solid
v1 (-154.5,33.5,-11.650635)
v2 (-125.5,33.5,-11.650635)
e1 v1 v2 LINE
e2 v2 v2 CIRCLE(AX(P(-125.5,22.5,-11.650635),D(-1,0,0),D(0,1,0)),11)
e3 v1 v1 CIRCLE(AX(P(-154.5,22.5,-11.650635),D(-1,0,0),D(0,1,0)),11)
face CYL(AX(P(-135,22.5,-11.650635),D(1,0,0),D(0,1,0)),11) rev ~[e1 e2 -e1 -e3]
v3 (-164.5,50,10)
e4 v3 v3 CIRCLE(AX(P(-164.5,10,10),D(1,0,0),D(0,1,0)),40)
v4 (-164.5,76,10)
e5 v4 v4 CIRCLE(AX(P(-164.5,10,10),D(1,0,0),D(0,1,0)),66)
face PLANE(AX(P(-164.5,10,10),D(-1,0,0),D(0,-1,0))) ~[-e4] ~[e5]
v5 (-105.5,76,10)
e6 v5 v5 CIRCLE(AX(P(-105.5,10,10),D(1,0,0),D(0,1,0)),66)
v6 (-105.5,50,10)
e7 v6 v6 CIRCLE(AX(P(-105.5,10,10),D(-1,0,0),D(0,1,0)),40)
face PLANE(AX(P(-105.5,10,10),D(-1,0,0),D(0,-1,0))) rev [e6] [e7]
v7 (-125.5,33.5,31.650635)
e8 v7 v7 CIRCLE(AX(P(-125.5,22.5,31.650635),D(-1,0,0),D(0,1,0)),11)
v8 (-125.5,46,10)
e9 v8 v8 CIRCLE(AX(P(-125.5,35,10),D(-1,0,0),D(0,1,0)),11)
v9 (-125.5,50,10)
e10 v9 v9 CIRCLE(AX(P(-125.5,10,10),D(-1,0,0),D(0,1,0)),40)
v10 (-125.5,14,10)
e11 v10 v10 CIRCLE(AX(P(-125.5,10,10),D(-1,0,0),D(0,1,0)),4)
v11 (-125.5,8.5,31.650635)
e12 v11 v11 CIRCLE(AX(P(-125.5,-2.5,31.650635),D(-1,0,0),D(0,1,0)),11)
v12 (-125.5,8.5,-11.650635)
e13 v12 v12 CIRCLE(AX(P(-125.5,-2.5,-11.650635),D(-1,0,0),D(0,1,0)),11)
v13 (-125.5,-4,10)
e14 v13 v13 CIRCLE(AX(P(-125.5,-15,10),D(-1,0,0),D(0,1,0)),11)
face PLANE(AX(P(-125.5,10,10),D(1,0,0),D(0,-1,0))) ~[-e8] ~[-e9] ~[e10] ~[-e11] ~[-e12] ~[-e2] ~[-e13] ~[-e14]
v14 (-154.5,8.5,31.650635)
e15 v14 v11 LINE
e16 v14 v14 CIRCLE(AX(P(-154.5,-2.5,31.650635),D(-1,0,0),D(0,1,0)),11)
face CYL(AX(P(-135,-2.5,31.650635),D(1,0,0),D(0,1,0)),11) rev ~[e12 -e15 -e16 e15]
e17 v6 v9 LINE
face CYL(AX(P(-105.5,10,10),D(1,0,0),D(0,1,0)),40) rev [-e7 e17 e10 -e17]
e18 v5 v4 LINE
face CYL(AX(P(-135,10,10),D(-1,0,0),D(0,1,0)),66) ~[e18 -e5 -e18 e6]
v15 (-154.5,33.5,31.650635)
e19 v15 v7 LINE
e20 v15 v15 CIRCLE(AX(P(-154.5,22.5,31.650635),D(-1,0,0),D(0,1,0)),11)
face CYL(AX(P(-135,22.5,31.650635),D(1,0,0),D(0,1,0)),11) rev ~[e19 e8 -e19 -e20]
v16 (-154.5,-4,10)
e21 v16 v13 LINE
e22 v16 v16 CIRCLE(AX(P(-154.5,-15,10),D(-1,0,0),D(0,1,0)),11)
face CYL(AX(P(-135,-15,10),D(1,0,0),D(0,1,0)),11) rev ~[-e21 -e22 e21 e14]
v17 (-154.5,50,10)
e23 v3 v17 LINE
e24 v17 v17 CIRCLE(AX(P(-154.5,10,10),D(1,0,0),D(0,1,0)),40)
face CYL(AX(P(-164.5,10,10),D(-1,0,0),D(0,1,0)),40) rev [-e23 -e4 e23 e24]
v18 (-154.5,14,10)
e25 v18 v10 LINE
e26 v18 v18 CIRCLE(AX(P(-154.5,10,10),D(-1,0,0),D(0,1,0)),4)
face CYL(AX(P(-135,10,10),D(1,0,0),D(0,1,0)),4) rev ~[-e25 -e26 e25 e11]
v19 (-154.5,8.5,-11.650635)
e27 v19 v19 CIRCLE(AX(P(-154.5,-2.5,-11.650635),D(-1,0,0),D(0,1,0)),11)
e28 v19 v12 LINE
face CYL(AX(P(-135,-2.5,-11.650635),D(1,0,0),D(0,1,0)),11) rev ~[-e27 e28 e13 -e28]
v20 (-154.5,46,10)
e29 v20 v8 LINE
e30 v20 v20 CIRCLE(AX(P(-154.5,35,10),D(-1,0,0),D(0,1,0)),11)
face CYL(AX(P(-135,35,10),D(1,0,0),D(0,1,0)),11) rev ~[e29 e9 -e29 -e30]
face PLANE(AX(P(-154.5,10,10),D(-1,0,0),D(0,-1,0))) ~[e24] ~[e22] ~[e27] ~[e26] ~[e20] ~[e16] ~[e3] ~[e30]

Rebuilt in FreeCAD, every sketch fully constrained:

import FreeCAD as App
import Part
import Sketcher

V = App.Vector
Q = App.Units.Quantity

doc = App.newDocument("Part")
params = doc.addObject("Spreadsheet::Sheet", "Params")
for row, (alias, value) in enumerate([
    ("sketch1_diameter", "132 mm"),
    ("sketch1_diameter2", "22 mm"),
    ("sketch1_diameter3", "8 mm"),
    ("pad1_length", "59 mm"),
    ("sketch2_diameter", "80 mm"),
    ("pocket1_length", "20 mm"),
    ("sketch3_diameter", "80 mm"),
    ("pocket2_length", "10 mm"),
], start=1):
    params.set(f"A{row}", alias)
    params.set(f"B{row}", "=" + value)
    params.setAlias(f"B{row}", alias)

body = doc.addObject("PartDesign::Body", "Body")

# Sketch on YZ plane
sketch1 = doc.addObject("Sketcher::SketchObject", "Sketch")
body.addObject(sketch1)
sketch1.AttachmentSupport = (doc.YZ_Plane, [""])
sketch1.MapMode = "FlatFace"
sketch1.addGeometry([
    Part.Circle(V(0, 0, 0), V(0, 0, 1), 66),  # 0
    Part.Circle(V(-12.5, -21.7, 0), V(0, 0, 1), 11),  # 1
    Part.Circle(V(12.5, -21.7, 0), V(0, 0, 1), 11),  # 2
    Part.Circle(V(-25, 0, 0), V(0, 0, 1), 11),  # 3
    Part.Circle(V(-12.5, 21.7, 0), V(0, 0, 1), 11),  # 4
    Part.Circle(V(0, 0, 0), V(0, 0, 1), 4),  # 5
    Part.Circle(V(25, 0, 0), V(0, 0, 1), 11),  # 6
    Part.Circle(V(12.5, 21.7, 0), V(0, 0, 1), 11),  # 7
], False)
sketch1.addConstraint([
    Sketcher.Constraint("Coincident", 0, 3, -1, 1),
    Sketcher.Constraint("Coincident", 5, 3, -1, 1),
    Sketcher.Constraint("Equal", 1, 2),
    Sketcher.Constraint("Equal", 2, 3),
    Sketcher.Constraint("Equal", 3, 4),
    Sketcher.Constraint("Equal", 4, 6),
    Sketcher.Constraint("Equal", 6, 7),
    Sketcher.Constraint("Symmetric", 2, 3, 4, 3, -1, 1),
    Sketcher.Constraint("Symmetric", 3, 3, 6, 3, -1, 1),
    Sketcher.Constraint("Symmetric", 1, 3, 7, 3, -1, 1),
    Sketcher.Constraint("Symmetric", 1, 3, 2, 3, -2),
    Sketcher.Constraint("PointOnObject", 3, 3, -1),
    Sketcher.Constraint("Diameter", 0, Q("132 mm")),
    Sketcher.Constraint("Diameter", 1, Q("22 mm")),
    Sketcher.Constraint("Diameter", 5, Q("8 mm")),
    Sketcher.Constraint("DistanceX", 3, 3, -1, 1, Q("25 mm")),
    Sketcher.Constraint("DistanceX", 1, 3, 2, 3, Q("25 mm")),
    Sketcher.Constraint("DistanceY", 1, 3, 4, 3, Q("43.30127 mm")),
])
sketch1.setExpression("Constraints[12]", "Params.sketch1_diameter")
sketch1.setExpression("Constraints[13]", "Params.sketch1_diameter2")
sketch1.setExpression("Constraints[14]", "Params.sketch1_diameter3")
pad1 = doc.addObject("PartDesign::Pad", "Pad")
body.addObject(pad1)
pad1.Profile = sketch1
pad1.setExpression("Length", "Params.pad1_length")
pad1.Midplane = True

# Sketch on YZ plane
sketch2 = doc.addObject("Sketcher::SketchObject", "Sketch001")
body.addObject(sketch2)
sketch2.AttachmentSupport = (doc.YZ_Plane, [""])
sketch2.MapMode = "FlatFace"
sketch2.AttachmentOffset = App.Placement(V(0, 0, -29.5), App.Rotation())
sketch2.addGeometry(Part.Circle(V(0, 0, 0), V(0, 0, 1), 40), False)
sketch2.addConstraint([
    Sketcher.Constraint("Coincident", 0, 3, -1, 1),
    Sketcher.Constraint("Diameter", 0, Q("80 mm")),
])
sketch2.setExpression("Constraints[1]", "Params.sketch2_diameter")
pocket1 = doc.addObject("PartDesign::Pocket", "Pocket")
body.addObject(pocket1)
pocket1.Profile = sketch2
pocket1.setExpression("Length", "Params.pocket1_length")
pocket1.Reversed = True

# Sketch on YZ plane
sketch3 = doc.addObject("Sketcher::SketchObject", "Sketch002")
body.addObject(sketch3)
sketch3.AttachmentSupport = (doc.YZ_Plane, [""])
sketch3.MapMode = "FlatFace"
sketch3.AttachmentOffset = App.Placement(V(0, 0, 29.5), App.Rotation())
sketch3.addGeometry(Part.Circle(V(0, 0, 0), V(0, 0, 1), 40), False)
sketch3.addConstraint([
    Sketcher.Constraint("Coincident", 0, 3, -1, 1),
    Sketcher.Constraint("Diameter", 0, Q("80 mm")),
])
sketch3.setExpression("Constraints[1]", "Params.sketch3_diameter")
pocket2 = doc.addObject("PartDesign::Pocket", "Pocket001")
body.addObject(pocket2)
pocket2.Profile = sketch3
pocket2.setExpression("Length", "Params.pocket2_length")
body2 = doc.addObject("PartDesign::Body", "Body001")
doc.recompute()

body.Placement = App.Placement(V(135, 10, 10), App.Rotation(V(0, 0, 1), 0))
boolean = doc.addObject("PartDesign::Boolean", "Boolean")
body2.addObject(boolean)
boolean.Type = "Fuse"
boolean.addObjects([body])
body3 = doc.addObject("PartDesign::Body", "Body002")
doc.recompute()

mirroring = doc.addObject("Part::Mirroring", "Mirroring")
mirroring.Source = body2
mirroring.Base = V(0, 0, 0)
mirroring.Normal = V(1, 0, 0)
body3.BaseFeature = mirroring
doc.recompute()
body2.Visibility = False
mirroring.Visibility = False

doc.recompute()
